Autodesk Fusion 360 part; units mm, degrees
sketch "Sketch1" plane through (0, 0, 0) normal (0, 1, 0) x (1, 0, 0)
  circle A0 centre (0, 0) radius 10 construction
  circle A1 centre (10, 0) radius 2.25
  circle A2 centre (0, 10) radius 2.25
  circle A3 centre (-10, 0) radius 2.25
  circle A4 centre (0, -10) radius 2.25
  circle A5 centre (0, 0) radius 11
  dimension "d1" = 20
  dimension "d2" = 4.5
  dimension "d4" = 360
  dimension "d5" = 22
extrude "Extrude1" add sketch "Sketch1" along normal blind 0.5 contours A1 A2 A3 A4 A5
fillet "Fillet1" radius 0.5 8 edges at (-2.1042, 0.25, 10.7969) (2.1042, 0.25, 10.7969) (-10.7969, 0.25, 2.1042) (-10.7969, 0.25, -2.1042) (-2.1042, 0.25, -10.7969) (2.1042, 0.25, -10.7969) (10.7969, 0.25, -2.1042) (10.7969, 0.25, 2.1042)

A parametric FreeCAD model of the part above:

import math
import FreeCAD as App
import Part
import Sketcher
Q = App.Units.Quantity


def edges_at(feature, points):
    """Names of the edges that pass closest to the given points."""
    edges = feature.Shape.Edges
    near = lambda p: min(range(len(edges)), key=lambda i: edges[i].distToShape(Part.Vertex(*p))[0])
    return sorted({f"Edge{near(p) + 1}" for p in points})

doc = App.newDocument("Part")
params = doc.addObject("Spreadsheet::Sheet", "Params")
for row, (alias, value) in enumerate([
    ("sketch1_radius", "11 mm"),
    ("sketch1_radius2", "2.25 mm"),
    ("pad1_length", "0.5 mm"),
    ("fillet_radius", "0.5 mm"),
], start=1):
    params.set(f"A{row}", alias)
    params.set(f"B{row}", "=" + value)
    params.setAlias(f"B{row}", alias)

body = doc.addObject("PartDesign::Body", "Body")

sketch1 = doc.addObject("Sketcher::SketchObject", "Sketch")
body.addObject(sketch1)
sketch1.AttachmentSupport = (doc.XZ_Plane, [""])
sketch1.MapMode = "FlatFace"
sketch1.addGeometry(Part.ArcOfCircle(Part.Circle(App.Vector(10, 0, 0), App.Vector(0, 0, 1), 2.25), math.radians(69.25762), math.radians(290.74238)), False)
sketch1.addGeometry(Part.ArcOfCircle(Part.Circle(App.Vector(0, 0, 0), App.Vector(0, 0, 1), 11), math.radians(-78.972081), math.radians(-11.027919)), False)
sketch1.addGeometry(Part.ArcOfCircle(Part.Circle(App.Vector(0, -10, 0), App.Vector(0, 0, 1), 2.25), math.radians(-20.74238), math.radians(200.74238)), False)
sketch1.addGeometry(Part.ArcOfCircle(Part.Circle(App.Vector(0, 0, 0), App.Vector(0, 0, 1), 11), math.radians(-168.972081), math.radians(-101.027919)), False)
sketch1.addGeometry(Part.ArcOfCircle(Part.Circle(App.Vector(-10, 0, 0), App.Vector(0, 0, 1), 2.25), math.radians(-110.74238), math.radians(110.74238)), False)
sketch1.addGeometry(Part.ArcOfCircle(Part.Circle(App.Vector(0, 0, 0), App.Vector(0, 0, 1), 11), math.radians(101.027919), math.radians(168.972081)), False)
sketch1.addGeometry(Part.ArcOfCircle(Part.Circle(App.Vector(0, 10, 0), App.Vector(0, 0, 1), 2.25), math.radians(159.25762), math.radians(380.74238)), False)
sketch1.addGeometry(Part.ArcOfCircle(Part.Circle(App.Vector(0, 0, 0), App.Vector(0, 0, 1), 11), math.radians(11.027919), math.radians(78.972081)), False)
sketch1.addConstraint(Sketcher.Constraint("Coincident", 0, 2, 1, 2))
sketch1.addConstraint(Sketcher.Constraint("Coincident", 1, 1, 2, 1))
sketch1.addConstraint(Sketcher.Constraint("Coincident", 2, 2, 3, 2))
sketch1.addConstraint(Sketcher.Constraint("Coincident", 3, 1, 4, 1))
sketch1.addConstraint(Sketcher.Constraint("Coincident", 4, 2, 5, 2))
sketch1.addConstraint(Sketcher.Constraint("Coincident", 5, 1, 6, 1))
sketch1.addConstraint(Sketcher.Constraint("Coincident", 6, 2, 7, 2))
sketch1.addConstraint(Sketcher.Constraint("Coincident", 7, 1, 0, 1))
sketch1.addConstraint(Sketcher.Constraint("Coincident", 1, 3, -1, 1))
sketch1.addConstraint(Sketcher.Constraint("Coincident", 3, 3, -1, 1))
sketch1.addConstraint(Sketcher.Constraint("Coincident", 5, 3, -1, 1))
sketch1.addConstraint(Sketcher.Constraint("Coincident", 7, 3, -1, 1))
sketch1.addConstraint(Sketcher.Constraint("Equal", 0, 2))
sketch1.addConstraint(Sketcher.Constraint("Equal", 1, 3))
sketch1.addConstraint(Sketcher.Constraint("Equal", 2, 4))
sketch1.addConstraint(Sketcher.Constraint("Equal", 3, 5))
sketch1.addConstraint(Sketcher.Constraint("Equal", 4, 6))
sketch1.addConstraint(Sketcher.Constraint("Equal", 5, 7))
sketch1.addConstraint(Sketcher.Constraint("Symmetric", 0, 3, 4, 3, -1, 1))
sketch1.addConstraint(Sketcher.Constraint("Symmetric", 2, 3, 6, 3, -1, 1))
sketch1.addConstraint(Sketcher.Constraint("PointOnObject", 0, 3, -1))
sketch1.addConstraint(Sketcher.Constraint("PointOnObject", 2, 3, -2))
sketch1.addConstraint(Sketcher.Constraint("Radius", 1, Q("11 mm")))
sketch1.addConstraint(Sketcher.Constraint("Radius", 0, Q("2.25 mm")))
sketch1.addConstraint(Sketcher.Constraint("DistanceX", 4, 3, 0, 3, Q("20 mm")))
sketch1.addConstraint(Sketcher.Constraint("DistanceY", 2, 3, -1, 1, Q("10 mm")))
sketch1.setExpression("Constraints[22]", "Params.sketch1_radius")
sketch1.setExpression("Constraints[23]", "Params.sketch1_radius2")
pad1 = doc.addObject("PartDesign::Pad", "Pad")
body.addObject(pad1)
pad1.Profile = sketch1
pad1.setExpression("Length", "Params.pad1_length")
pad1.Reversed = True
doc.recompute()

fillet = doc.addObject("PartDesign::Fillet", "Fillet")
body.addObject(fillet)
fillet.Base = (pad1, edges_at(pad1, [
    (-2.104, 0.25, 10.797),
    (2.104, 0.25, 10.797),
    (-10.797, 0.25, 2.104),
    (-10.797, 0.25, -2.104),
    (-2.104, 0.25, -10.797),
    (2.104, 0.25, -10.797),
    (10.797, 0.25, -2.104),
    (10.797, 0.25, 2.104),
]))
fillet.setExpression("Radius", "Params.fillet_radius")

doc.recompute()
